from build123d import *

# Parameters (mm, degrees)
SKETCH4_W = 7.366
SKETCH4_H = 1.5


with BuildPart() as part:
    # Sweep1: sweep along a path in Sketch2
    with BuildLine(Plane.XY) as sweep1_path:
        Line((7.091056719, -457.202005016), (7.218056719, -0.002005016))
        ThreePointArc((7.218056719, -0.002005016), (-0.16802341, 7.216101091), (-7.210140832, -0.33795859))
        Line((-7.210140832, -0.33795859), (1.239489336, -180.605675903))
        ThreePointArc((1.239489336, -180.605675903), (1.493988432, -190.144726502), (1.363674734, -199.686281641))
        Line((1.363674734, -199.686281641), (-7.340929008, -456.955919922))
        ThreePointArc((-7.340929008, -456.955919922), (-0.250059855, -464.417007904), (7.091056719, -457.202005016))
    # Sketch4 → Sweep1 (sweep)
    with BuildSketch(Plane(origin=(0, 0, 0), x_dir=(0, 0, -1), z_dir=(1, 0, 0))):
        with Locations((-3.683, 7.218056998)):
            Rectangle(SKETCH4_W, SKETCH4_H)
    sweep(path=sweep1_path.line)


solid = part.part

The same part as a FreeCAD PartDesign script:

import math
import FreeCAD as App
import Part
import Sketcher
from FreeCAD import Vector
Q = App.Units.Quantity


def add_polygon(sketch, points):
    """Adds a closed chain of lines whose ends are joined by coincident constraints."""
    first, n = sketch.GeometryCount, len(points)
    for a, b in zip(points, points[1:] + points[:1]):
        sketch.addGeometry(Part.LineSegment(App.Vector(*a, 0), App.Vector(*b, 0)), False)
    for i in range(n):
        sketch.addConstraint(Sketcher.Constraint("Coincident", first + i, 2, first + (i + 1) % n, 1))

doc = App.newDocument("Part")
params = doc.addObject("Spreadsheet::Sheet", "Params")
for row, (alias, value) in enumerate([
    ("sketch1_width", "1.5 mm"),
], start=1):
    params.set(f"A{row}", alias)
    params.set(f"B{row}", "=" + value)
    params.setAlias(f"B{row}", alias)

body = doc.addObject("PartDesign::Body", "Body")

# Sketch on YZ plane
sketch1 = doc.addObject("Sketcher::SketchObject", "Sketch")
body.addObject(sketch1)
sketch1.AttachmentSupport = (doc.YZ_Plane, [""])
sketch1.MapMode = "FlatFace"
add_polygon(sketch1, [(7.968057, 7.366), (6.468057, 7.366), (6.468057, 0), (7.968057, 0)])  # lines 0-3
sketch1.addConstraint([
    Sketcher.Constraint("Horizontal", 0),
    Sketcher.Constraint("Vertical", 1),
    Sketcher.Constraint("Horizontal", 2),
    Sketcher.Constraint("Vertical", 3),
    Sketcher.Constraint("PointOnObject", 1, 2, -1),
    Sketcher.Constraint("DistanceX", 0, 2, 0, 1, Q("1.5 mm")),
    Sketcher.Constraint("DistanceY", 1, 2, 1, 1, Q("7.366 mm")),
    Sketcher.Constraint("DistanceX", -1, 1, 0, 2, Q("6.468057 mm")),
])
sketch1.setExpression("Constraints[9]", "Params.sketch1_width")

# Sketch on XY plane
sketch2 = doc.addObject("Sketcher::SketchObject", "Sketch001")
body.addObject(sketch2)
sketch2.AttachmentSupport = (doc.XY_Plane, [""])
sketch2.MapMode = "FlatFace"
sketch2.addGeometry([
    Part.LineSegment(Vector(7.091057, -457.202005, 0), Vector(7.218057, -0.002005, 0)),  # 0
    Part.ArcOfCircle(Part.Circle(Vector(0, 0, 0), Vector(0, 0, 1), 7.218057), math.radians(-0.015915), math.radians(182.683642)),  # 1
    Part.LineSegment(Vector(-7.210141, -0.337959, 0), Vector(1.239489, -180.605676, 0)),  # 2
    Part.ArcOfCircle(Part.Circle(Vector(-235.126, -191.684759, 0), Vector(0, 0, 1), 236.625), math.radians(-1.937838), math.radians(2.683642)),  # 3
    Part.LineSegment(Vector(1.363675, -199.686282, 0), Vector(-7.340929, -456.95592, 0)),  # 4
    Part.ArcOfCircle(Part.Circle(Vector(-0.127, -457.2, 0), Vector(0, 0, 1), 7.218057), math.radians(178.062162), math.radians(359.984085)),  # 5
], False)
sketch2.addConstraint([
    Sketcher.Constraint("Tangent", 0, 2, 1, 1),
    Sketcher.Constraint("Tangent", 1, 2, 2, 1),
    Sketcher.Constraint("Tangent", 2, 2, 3, 2),
    Sketcher.Constraint("Tangent", 3, 1, 4, 1),
    Sketcher.Constraint("Tangent", 4, 2, 5, 1),
    Sketcher.Constraint("Tangent", 5, 2, 0, 1),
    Sketcher.Constraint("Coincident", 1, 3, -1, 1),
    Sketcher.Constraint("Equal", 1, 5),
    Sketcher.Constraint("Radius", 3, Q("236.625 mm")),
    Sketcher.Constraint("DistanceY", 5, 3, -1, 1, Q("457.2 mm")),
    Sketcher.Constraint("DistanceX", 3, 3, -1, 1, Q("235.126 mm")),
    Sketcher.Constraint("DistanceX", 5, 3, -1, 1, Q("0.127 mm")),
    Sketcher.Constraint("Radius", 1, Q("7.218057 mm")),
    Sketcher.Constraint("DistanceY", 3, 3, 1, 2, Q("191.3468 mm")),
])
doc.recompute()

additivepipe = doc.addObject("PartDesign::AdditivePipe", "AdditivePipe")
body.addObject(additivepipe)
additivepipe.Profile = sketch1
additivepipe.Spine = (sketch2, ["Edge1", "Edge2", "Edge3", "Edge4", "Edge5", "Edge6"])

doc.recompute()
